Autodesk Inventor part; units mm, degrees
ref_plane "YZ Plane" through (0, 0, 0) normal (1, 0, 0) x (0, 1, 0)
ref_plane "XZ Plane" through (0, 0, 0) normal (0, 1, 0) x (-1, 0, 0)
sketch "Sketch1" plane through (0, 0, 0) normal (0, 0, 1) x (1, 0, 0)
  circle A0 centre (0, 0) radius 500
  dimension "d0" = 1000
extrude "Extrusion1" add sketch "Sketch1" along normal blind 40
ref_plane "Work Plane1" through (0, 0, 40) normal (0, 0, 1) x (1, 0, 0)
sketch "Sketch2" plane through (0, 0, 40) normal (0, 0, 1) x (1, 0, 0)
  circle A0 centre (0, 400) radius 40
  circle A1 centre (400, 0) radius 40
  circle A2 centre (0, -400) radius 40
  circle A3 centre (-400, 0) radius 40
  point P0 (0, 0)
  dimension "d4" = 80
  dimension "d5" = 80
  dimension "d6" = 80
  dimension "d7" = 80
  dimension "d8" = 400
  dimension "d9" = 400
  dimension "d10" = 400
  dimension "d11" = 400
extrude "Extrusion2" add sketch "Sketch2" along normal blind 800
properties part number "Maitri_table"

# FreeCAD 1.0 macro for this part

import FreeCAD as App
import Part
import Sketcher
from FreeCAD import Vector
Q = App.Units.Quantity

doc = App.newDocument("Part")
body = doc.addObject("PartDesign::Body", "Body")

# Sketch on XY plane
sketch1 = body.newObject("Sketcher::SketchObject", "Sketch")
sketch1.AttachmentSupport = (doc.getObject("XY_Plane"), [""])
sketch1.MapMode = "FlatFace"
sketch1.addGeometry(Part.Circle(Vector(0, 0, 0), Vector(0, 0, 1), 500), False)
sketch1.addConstraint(Sketcher.Constraint("Coincident", 0, 3, -1, 1))
sketch1.addConstraint(Sketcher.Constraint("Diameter", 0, Q("1000 mm")))
pad1 = body.newObject("PartDesign::Pad", "Pad")
pad1.Profile = sketch1
pad1.Length = 40

# Sketch on XY plane
sketch2 = body.newObject("Sketcher::SketchObject", "Sketch001")
sketch2.AttachmentSupport = (doc.getObject("XY_Plane"), [""])
sketch2.MapMode = "FlatFace"
sketch2.AttachmentOffset = App.Placement(Vector(0, 0, 40), App.Rotation())
sketch2.addGeometry(Part.Circle(Vector(0, 400, 0), Vector(0, 0, 1), 40), False)
sketch2.addGeometry(Part.Circle(Vector(400, 0, 0), Vector(0, 0, 1), 40), False)
sketch2.addGeometry(Part.Circle(Vector(0, -400, 0), Vector(0, 0, 1), 40), False)
sketch2.addGeometry(Part.Circle(Vector(-400, 0, 0), Vector(0, 0, 1), 40), False)
sketch2.addConstraint(Sketcher.Constraint("Equal", 0, 1))
sketch2.addConstraint(Sketcher.Constraint("Equal", 1, 2))
sketch2.addConstraint(Sketcher.Constraint("Equal", 2, 3))
sketch2.addConstraint(Sketcher.Constraint("Symmetric", 0, 3, 2, 3, -1, 1))
sketch2.addConstraint(Sketcher.Constraint("Symmetric", 1, 3, 3, 3, -1, 1))
sketch2.addConstraint(Sketcher.Constraint("PointOnObject", 0, 3, -2))
sketch2.addConstraint(Sketcher.Constraint("PointOnObject", 1, 3, -1))
sketch2.addConstraint(Sketcher.Constraint("Diameter", 0, Q("80 mm")))
sketch2.addConstraint(Sketcher.Constraint("DistanceY", -1, 1, 0, 3, Q("400 mm")))
sketch2.addConstraint(Sketcher.Constraint("DistanceX", -1, 1, 1, 3, Q("400 mm")))
pad2 = body.newObject("PartDesign::Pad", "Pad001")
pad2.Profile = sketch2
pad2.Length = 800

doc.recompute()
